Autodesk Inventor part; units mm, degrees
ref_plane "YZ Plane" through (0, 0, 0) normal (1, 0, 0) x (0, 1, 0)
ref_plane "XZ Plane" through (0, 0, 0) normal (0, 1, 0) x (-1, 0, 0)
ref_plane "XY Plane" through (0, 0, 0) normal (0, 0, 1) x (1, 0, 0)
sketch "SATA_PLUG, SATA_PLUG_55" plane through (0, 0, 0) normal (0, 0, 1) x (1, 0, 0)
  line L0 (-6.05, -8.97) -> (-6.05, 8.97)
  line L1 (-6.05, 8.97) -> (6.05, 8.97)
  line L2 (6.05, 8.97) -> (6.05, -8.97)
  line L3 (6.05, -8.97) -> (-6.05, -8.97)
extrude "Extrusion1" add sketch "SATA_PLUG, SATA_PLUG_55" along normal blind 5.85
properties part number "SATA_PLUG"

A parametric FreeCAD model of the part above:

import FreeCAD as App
import Part
import Sketcher

V = App.Vector


def add_polygon(sketch, points):
    """Adds a closed chain of lines whose ends are joined by coincident constraints."""
    first, n = sketch.GeometryCount, len(points)
    for a, b in zip(points, points[1:] + points[:1]):
        sketch.addGeometry(Part.LineSegment(App.Vector(*a, 0), App.Vector(*b, 0)), False)
    for i in range(n):
        sketch.addConstraint(Sketcher.Constraint("Coincident", first + i, 2, first + (i + 1) % n, 1))

doc = App.newDocument("Part")
body = doc.addObject("PartDesign::Body", "Body")

# Sketch on XY plane
sketch1 = body.newObject("Sketcher::SketchObject", "Sketch")
sketch1.AttachmentSupport = (doc.getObject("XY_Plane"), [""])
sketch1.MapMode = "FlatFace"
add_polygon(sketch1, [(-6, 9), (-6, -9), (6, -9), (6, 9)])  # lines 0-3
sketch1.addConstraint([
    Sketcher.Constraint("Vertical", 0),
    Sketcher.Constraint("Horizontal", 1),
    Sketcher.Constraint("Vertical", 2),
    Sketcher.Constraint("Horizontal", 3),
    Sketcher.Constraint("Symmetric", 0, 2, 2, 2, -1, 1),
    Sketcher.Constraint("DistanceX", 1, 1, 1, 2, 12.1),
    Sketcher.Constraint("DistanceY", 0, 2, 0, 1, 17.94),
])
pad1 = body.newObject("PartDesign::Pad", "Pad")
pad1.Profile = sketch1
pad1.Length = 5.85

doc.recompute()
